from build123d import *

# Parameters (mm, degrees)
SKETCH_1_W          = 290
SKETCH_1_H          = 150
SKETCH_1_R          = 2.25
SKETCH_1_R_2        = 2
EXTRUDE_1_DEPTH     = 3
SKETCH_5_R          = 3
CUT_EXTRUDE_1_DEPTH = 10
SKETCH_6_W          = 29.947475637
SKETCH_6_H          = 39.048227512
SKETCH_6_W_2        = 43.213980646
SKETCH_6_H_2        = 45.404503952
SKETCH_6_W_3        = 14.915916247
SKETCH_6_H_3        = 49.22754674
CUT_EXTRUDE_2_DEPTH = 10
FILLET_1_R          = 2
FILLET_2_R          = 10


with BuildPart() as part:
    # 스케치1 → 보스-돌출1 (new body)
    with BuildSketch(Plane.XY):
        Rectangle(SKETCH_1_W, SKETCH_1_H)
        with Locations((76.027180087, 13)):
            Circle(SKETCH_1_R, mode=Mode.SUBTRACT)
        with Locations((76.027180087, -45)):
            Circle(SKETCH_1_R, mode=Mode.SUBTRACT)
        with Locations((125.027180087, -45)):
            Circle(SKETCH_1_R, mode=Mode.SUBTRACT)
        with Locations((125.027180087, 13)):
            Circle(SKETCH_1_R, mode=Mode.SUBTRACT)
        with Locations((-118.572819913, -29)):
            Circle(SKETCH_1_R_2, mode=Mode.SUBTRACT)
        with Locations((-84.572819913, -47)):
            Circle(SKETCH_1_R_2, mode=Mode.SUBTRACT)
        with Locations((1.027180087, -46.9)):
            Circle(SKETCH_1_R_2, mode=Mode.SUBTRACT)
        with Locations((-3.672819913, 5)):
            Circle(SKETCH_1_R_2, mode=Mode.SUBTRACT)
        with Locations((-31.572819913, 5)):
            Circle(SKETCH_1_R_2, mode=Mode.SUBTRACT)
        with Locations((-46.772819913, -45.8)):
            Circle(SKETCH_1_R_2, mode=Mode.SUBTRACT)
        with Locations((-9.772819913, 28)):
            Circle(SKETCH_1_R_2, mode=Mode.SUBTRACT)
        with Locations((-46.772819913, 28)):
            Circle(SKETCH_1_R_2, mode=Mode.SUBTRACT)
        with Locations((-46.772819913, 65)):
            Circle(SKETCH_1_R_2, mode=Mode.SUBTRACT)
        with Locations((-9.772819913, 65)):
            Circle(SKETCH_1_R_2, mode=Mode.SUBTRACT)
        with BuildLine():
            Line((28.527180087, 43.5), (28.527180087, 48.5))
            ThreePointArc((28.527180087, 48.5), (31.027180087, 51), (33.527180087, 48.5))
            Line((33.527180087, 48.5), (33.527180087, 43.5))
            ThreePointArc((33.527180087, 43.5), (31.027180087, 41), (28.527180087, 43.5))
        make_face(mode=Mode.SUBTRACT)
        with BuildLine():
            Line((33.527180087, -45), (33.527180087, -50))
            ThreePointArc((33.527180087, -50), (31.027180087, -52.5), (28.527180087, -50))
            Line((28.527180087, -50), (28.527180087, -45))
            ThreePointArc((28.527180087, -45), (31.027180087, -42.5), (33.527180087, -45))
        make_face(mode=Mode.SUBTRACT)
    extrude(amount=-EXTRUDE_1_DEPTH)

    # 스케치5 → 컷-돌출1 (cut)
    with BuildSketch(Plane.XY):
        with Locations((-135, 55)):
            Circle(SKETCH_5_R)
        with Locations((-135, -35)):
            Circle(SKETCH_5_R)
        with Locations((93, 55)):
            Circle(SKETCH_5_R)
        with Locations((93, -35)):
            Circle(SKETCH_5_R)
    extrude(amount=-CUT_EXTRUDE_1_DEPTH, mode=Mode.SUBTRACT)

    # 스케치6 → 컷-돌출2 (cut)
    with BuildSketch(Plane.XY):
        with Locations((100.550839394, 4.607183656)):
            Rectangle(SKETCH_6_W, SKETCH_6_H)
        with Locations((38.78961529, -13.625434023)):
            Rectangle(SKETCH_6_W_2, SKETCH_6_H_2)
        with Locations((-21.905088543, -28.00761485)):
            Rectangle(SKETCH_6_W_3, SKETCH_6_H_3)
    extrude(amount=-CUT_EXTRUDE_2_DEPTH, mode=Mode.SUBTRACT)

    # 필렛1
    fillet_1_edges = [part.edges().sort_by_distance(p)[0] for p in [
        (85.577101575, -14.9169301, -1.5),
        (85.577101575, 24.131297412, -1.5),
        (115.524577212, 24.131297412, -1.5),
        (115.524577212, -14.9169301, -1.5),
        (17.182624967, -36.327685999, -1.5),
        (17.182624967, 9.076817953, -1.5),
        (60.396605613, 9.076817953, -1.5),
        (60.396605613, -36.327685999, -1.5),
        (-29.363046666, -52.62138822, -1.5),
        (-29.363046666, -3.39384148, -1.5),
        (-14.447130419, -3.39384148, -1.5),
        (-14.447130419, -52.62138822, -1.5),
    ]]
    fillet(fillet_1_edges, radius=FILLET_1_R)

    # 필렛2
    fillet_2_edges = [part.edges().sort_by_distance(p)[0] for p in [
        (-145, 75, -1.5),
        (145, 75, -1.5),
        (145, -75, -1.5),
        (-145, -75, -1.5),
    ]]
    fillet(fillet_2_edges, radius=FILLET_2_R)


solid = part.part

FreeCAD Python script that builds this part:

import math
import FreeCAD as App
import Part
import Sketcher

V = App.Vector


def edges_at(feature, points):
    """Names of the edges that pass closest to the given points."""
    edges = feature.Shape.Edges
    near = lambda p: min(range(len(edges)), key=lambda i: edges[i].distToShape(Part.Vertex(*p))[0])
    return sorted({f"Edge{near(p) + 1}" for p in points})


def add_polygon(sketch, points):
    """Adds a closed chain of lines whose ends are joined by coincident constraints."""
    first, n = sketch.GeometryCount, len(points)
    for a, b in zip(points, points[1:] + points[:1]):
        sketch.addGeometry(Part.LineSegment(App.Vector(*a, 0), App.Vector(*b, 0)), False)
    for i in range(n):
        sketch.addConstraint(Sketcher.Constraint("Coincident", first + i, 2, first + (i + 1) % n, 1))

doc = App.newDocument("Part")
body = doc.addObject("PartDesign::Body", "Body")

# Sketch on XY plane
sketch1 = body.newObject("Sketcher::SketchObject", "Sketch")
sketch1.AttachmentSupport = (doc.getObject("XY_Plane"), [""])
sketch1.MapMode = "FlatFace"
add_polygon(sketch1, [(-145, 75), (-145, -75), (145, -75), (145, 75)])  # lines 0-3
sketch1.addGeometry(Part.Circle(V(-84.57282, -47, 0), V(0, 0, 1), 2), False)  # 4
sketch1.addGeometry(Part.Circle(V(-118.57282, -29, 0), V(0, 0, 1), 2), False)  # 5
sketch1.addGeometry(Part.Circle(V(-46.77282, -45.8, 0), V(0, 0, 1), 2), False)  # 6
sketch1.addGeometry(Part.Circle(V(1.02718, -46.9, 0), V(0, 0, 1), 2), False)  # 7
sketch1.addGeometry(Part.Circle(V(-31.57282, 5, 0), V(0, 0, 1), 2), False)  # 8
sketch1.addGeometry(Part.Circle(V(-3.67282, 5, 0), V(0, 0, 1), 2), False)  # 9
sketch1.addGeometry(Part.ArcOfCircle(Part.Circle(V(31.02718, -45, 0), V(0, 0, 1), 2.5), math.radians(0), math.radians(180)), False)  # 10
sketch1.addGeometry(Part.LineSegment(V(33.52718, -45, 0), V(33.52718, -50, 0)), False)  # 11
sketch1.addGeometry(Part.ArcOfCircle(Part.Circle(V(31.02718, -50, 0), V(0, 0, 1), 2.5), math.radians(180), math.radians(360)), False)  # 12
sketch1.addGeometry(Part.LineSegment(V(28.52718, -50, 0), V(28.52718, -45, 0)), False)  # 13
sketch1.addGeometry(Part.Circle(V(76.02718, -45, 0), V(0, 0, 1), 2.25), False)  # 14
sketch1.addGeometry(Part.Circle(V(125.02718, -45, 0), V(0, 0, 1), 2.25), False)  # 15
sketch1.addGeometry(Part.Circle(V(-46.77282, 28, 0), V(0, 0, 1), 2), False)  # 16
sketch1.addGeometry(Part.Circle(V(-9.77282, 28, 0), V(0, 0, 1), 2), False)  # 17
sketch1.addGeometry(Part.Circle(V(-46.77282, 65, 0), V(0, 0, 1), 2), False)  # 18
sketch1.addGeometry(Part.Circle(V(-9.77282, 65, 0), V(0, 0, 1), 2), False)  # 19
sketch1.addGeometry(Part.Circle(V(76.02718, 13, 0), V(0, 0, 1), 2.25), False)  # 20
sketch1.addGeometry(Part.Circle(V(125.02718, 13, 0), V(0, 0, 1), 2.25), False)  # 21
sketch1.addGeometry(Part.ArcOfCircle(Part.Circle(V(31.02718, 43.5, 0), V(0, 0, 1), 2.5), math.radians(180), math.radians(360)), False)  # 22
sketch1.addGeometry(Part.LineSegment(V(28.52718, 43.5, 0), V(28.52718, 48.5, 0)), False)  # 23
sketch1.addGeometry(Part.ArcOfCircle(Part.Circle(V(31.02718, 48.5, 0), V(0, 0, 1), 2.5), math.radians(0), math.radians(180)), False)  # 24
sketch1.addGeometry(Part.LineSegment(V(33.52718, 48.5, 0), V(33.52718, 43.5, 0)), False)  # 25
sketch1.addConstraint(Sketcher.Constraint("Tangent", 10, 1, 11, 1))
sketch1.addConstraint(Sketcher.Constraint("Tangent", 11, 2, 12, 2))
sketch1.addConstraint(Sketcher.Constraint("Tangent", 12, 1, 13, 1))
sketch1.addConstraint(Sketcher.Constraint("Tangent", 13, 2, 10, 2))
sketch1.addConstraint(Sketcher.Constraint("Tangent", 22, 1, 23, 1))
sketch1.addConstraint(Sketcher.Constraint("Tangent", 23, 2, 24, 2))
sketch1.addConstraint(Sketcher.Constraint("Tangent", 24, 1, 25, 1))
sketch1.addConstraint(Sketcher.Constraint("Tangent", 25, 2, 22, 2))
sketch1.addConstraint(Sketcher.Constraint("Vertical", 0))
sketch1.addConstraint(Sketcher.Constraint("Horizontal", 1))
sketch1.addConstraint(Sketcher.Constraint("Vertical", 2))
sketch1.addConstraint(Sketcher.Constraint("Horizontal", 3))
sketch1.addConstraint(Sketcher.Constraint("Vertical", 11))
sketch1.addConstraint(Sketcher.Constraint("Vertical", 13))
sketch1.addConstraint(Sketcher.Constraint("Vertical", 23))
sketch1.addConstraint(Sketcher.Constraint("Vertical", 25))
sketch1.addConstraint(Sketcher.Constraint("Equal", 4, 5))
sketch1.addConstraint(Sketcher.Constraint("Equal", 5, 6))
sketch1.addConstraint(Sketcher.Constraint("Equal", 6, 7))
sketch1.addConstraint(Sketcher.Constraint("Equal", 7, 8))
sketch1.addConstraint(Sketcher.Constraint("Equal", 8, 9))
sketch1.addConstraint(Sketcher.Constraint("Equal", 14, 15))
sketch1.addConstraint(Sketcher.Constraint("Equal", 9, 16))
sketch1.addConstraint(Sketcher.Constraint("Equal", 16, 17))
sketch1.addConstraint(Sketcher.Constraint("Equal", 17, 18))
sketch1.addConstraint(Sketcher.Constraint("Equal", 18, 19))
sketch1.addConstraint(Sketcher.Constraint("Equal", 15, 20))
sketch1.addConstraint(Sketcher.Constraint("Equal", 20, 21))
sketch1.addConstraint(Sketcher.Constraint("Equal", 12, 22))
sketch1.addConstraint(Sketcher.Constraint("Symmetric", 0, 2, 2, 2, -1, 1))
sketch1.addConstraint(Sketcher.Constraint("Horizontal", 8, 3, 9, 3))
sketch1.addConstraint(Sketcher.Constraint("Horizontal", 10, 3, 14, 3))
sketch1.addConstraint(Sketcher.Constraint("Horizontal", 14, 3, 15, 3))
sketch1.addConstraint(Sketcher.Constraint("Horizontal", 16, 3, 17, 3))
sketch1.addConstraint(Sketcher.Constraint("Horizontal", 18, 3, 19, 3))
sketch1.addConstraint(Sketcher.Constraint("Horizontal", 20, 3, 21, 3))
sketch1.addConstraint(Sketcher.Constraint("Vertical", 6, 3, 16, 3))
sketch1.addConstraint(Sketcher.Constraint("Vertical", 16, 3, 18, 3))
sketch1.addConstraint(Sketcher.Constraint("Vertical", 17, 3, 19, 3))
sketch1.addConstraint(Sketcher.Constraint("Vertical", 14, 3, 20, 3))
sketch1.addConstraint(Sketcher.Constraint("Vertical", 15, 3, 21, 3))
sketch1.addConstraint(Sketcher.Constraint("Vertical", 12, 3, 22, 3))
sketch1.addConstraint(Sketcher.Constraint("Equal", 13, 23))
sketch1.addConstraint(Sketcher.Constraint("Diameter", 4, 4.0))
sketch1.addConstraint(Sketcher.Constraint("Diameter", 14, 4.5))
sketch1.addConstraint(Sketcher.Constraint("Radius", 10, 2.5))
sketch1.addConstraint(Sketcher.Constraint("DistanceX", 1, 1, 1, 2, 290.0))
sketch1.addConstraint(Sketcher.Constraint("DistanceY", 0, 2, 0, 1, 150.0))
sketch1.addConstraint(Sketcher.Constraint("DistanceY", 11, 2, 11, 1, 5.0))
sketch1.addConstraint(Sketcher.Constraint("DistanceY", 4, 3, -1, 1, 47.0))
sketch1.addConstraint(Sketcher.Constraint("DistanceY", 5, 3, -1, 1, 29.0))
sketch1.addConstraint(Sketcher.Constraint("DistanceY", -1, 1, 8, 3, 5.0))
sketch1.addConstraint(Sketcher.Constraint("DistanceY", 10, 3, -1, 1, 45.0))
sketch1.addConstraint(Sketcher.Constraint("DistanceY", -1, 1, 16, 3, 28.0))
sketch1.addConstraint(Sketcher.Constraint("DistanceY", -1, 1, 18, 3, 65.0))
sketch1.addConstraint(Sketcher.Constraint("DistanceY", -1, 1, 20, 3, 13.0))
sketch1.addConstraint(Sketcher.Constraint("DistanceX", 5, 3, 4, 3, 34.0))
sketch1.addConstraint(Sketcher.Constraint("DistanceX", 4, 3, 8, 3, 53.0))
sketch1.addConstraint(Sketcher.Constraint("DistanceX", 7, 3, 10, 3, 30.0))
sketch1.addConstraint(Sketcher.Constraint("DistanceX", 10, 3, 14, 3, 45.0))
sketch1.addConstraint(Sketcher.Constraint("DistanceX", 14, 3, 15, 3, 49.0))
sketch1.addConstraint(Sketcher.Constraint("DistanceX", 16, 3, 17, 3, 37.0))
sketch1.addConstraint(Sketcher.Constraint("DistanceY", 6, 3, -1, 1, 45.8))
sketch1.addConstraint(Sketcher.Constraint("DistanceY", 7, 3, -1, 1, 46.9))
sketch1.addConstraint(Sketcher.Constraint("DistanceY", -1, 1, 22, 3, 43.5))
sketch1.addConstraint(Sketcher.Constraint("DistanceX", 4, 3, 6, 3, 37.8))
sketch1.addConstraint(Sketcher.Constraint("DistanceX", 6, 3, 7, 3, 47.8))
sketch1.addConstraint(Sketcher.Constraint("DistanceX", 8, 3, 9, 3, 27.9))
sketch1.addConstraint(Sketcher.Constraint("DistanceX", 4, 3, -1, 1, 84.57282))
pad1 = body.newObject("PartDesign::Pad", "Pad")
pad1.Profile = sketch1
pad1.Length = 3
pad1.Reversed = True

# Sketch on XY plane
sketch2 = body.newObject("Sketcher::SketchObject", "Sketch001")
sketch2.AttachmentSupport = (doc.getObject("XY_Plane"), [""])
sketch2.MapMode = "FlatFace"
sketch2.addGeometry(Part.Circle(V(-135, 55, 0), V(0, 0, 1), 3), False)
sketch2.addGeometry(Part.Circle(V(-135, -35, 0), V(0, 0, 1), 3), False)
sketch2.addGeometry(Part.Circle(V(93, 55, 0), V(0, 0, 1), 3), False)
sketch2.addGeometry(Part.Circle(V(93, -35, 0), V(0, 0, 1), 3), False)
sketch2.addConstraint(Sketcher.Constraint("Equal", 0, 1))
sketch2.addConstraint(Sketcher.Constraint("Equal", 1, 2))
sketch2.addConstraint(Sketcher.Constraint("Equal", 2, 3))
sketch2.addConstraint(Sketcher.Constraint("Horizontal", 0, 3, 2, 3))
sketch2.addConstraint(Sketcher.Constraint("Horizontal", 1, 3, 3, 3))
sketch2.addConstraint(Sketcher.Constraint("Vertical", 0, 3, 1, 3))
sketch2.addConstraint(Sketcher.Constraint("Vertical", 2, 3, 3, 3))
sketch2.addConstraint(Sketcher.Constraint("Diameter", 0, 6.0))
sketch2.addConstraint(Sketcher.Constraint("DistanceX", 0, 3, -1, 1, 135.0))
sketch2.addConstraint(Sketcher.Constraint("DistanceY", -1, 1, 0, 3, 55.0))
sketch2.addConstraint(Sketcher.Constraint("DistanceY", 1, 3, -1, 1, 35.0))
sketch2.addConstraint(Sketcher.Constraint("DistanceX", -1, 1, 2, 3, 93.0))
pocket1 = body.newObject("PartDesign::Pocket", "Pocket")
pocket1.Profile = sketch2
pocket1.Length = 10

# Sketch on XY plane
sketch3 = body.newObject("Sketcher::SketchObject", "Sketch002")
sketch3.AttachmentSupport = (doc.getObject("XY_Plane"), [""])
sketch3.MapMode = "FlatFace"
add_polygon(sketch3, [(85.577102, 24.131297), (85.577102, -14.91693), (115.524577, -14.91693), (115.524577, 24.131297)])  # lines 0-3
add_polygon(sketch3, [(17.182625, 9.076818), (17.182625, -36.327686), (60.396606, -36.327686), (60.396606, 9.076818)])  # lines 4-7
add_polygon(sketch3, [(-29.363047, -3.393841), (-29.363047, -52.621388), (-14.44713, -52.621388), (-14.44713, -3.393841)])  # lines 8-11
sketch3.addConstraint(Sketcher.Constraint("Vertical", 0))
sketch3.addConstraint(Sketcher.Constraint("Horizontal", 1))
sketch3.addConstraint(Sketcher.Constraint("Vertical", 2))
sketch3.addConstraint(Sketcher.Constraint("Horizontal", 3))
sketch3.addConstraint(Sketcher.Constraint("Vertical", 4))
sketch3.addConstraint(Sketcher.Constraint("Horizontal", 5))
sketch3.addConstraint(Sketcher.Constraint("Vertical", 6))
sketch3.addConstraint(Sketcher.Constraint("Horizontal", 7))
sketch3.addConstraint(Sketcher.Constraint("Vertical", 8))
sketch3.addConstraint(Sketcher.Constraint("Horizontal", 9))
sketch3.addConstraint(Sketcher.Constraint("Vertical", 10))
sketch3.addConstraint(Sketcher.Constraint("Horizontal", 11))
sketch3.addConstraint(Sketcher.Constraint("DistanceX", 5, 1, 5, 2, 43.213981))
sketch3.addConstraint(Sketcher.Constraint("DistanceX", -1, 1, 0, 2, 85.577102))
sketch3.addConstraint(Sketcher.Constraint("DistanceX", 1, 1, 1, 2, 29.947476))
sketch3.addConstraint(Sketcher.Constraint("DistanceX", 9, 1, 9, 2, 14.915916))
sketch3.addConstraint(Sketcher.Constraint("DistanceY", 0, 2, 0, 1, 39.048228))
sketch3.addConstraint(Sketcher.Constraint("DistanceY", 4, 2, 4, 1, 45.404504))
sketch3.addConstraint(Sketcher.Constraint("DistanceY", 8, 2, 8, 1, 49.227547))
sketch3.addConstraint(Sketcher.Constraint("DistanceY", 0, 2, -1, 1, 14.91693))
sketch3.addConstraint(Sketcher.Constraint("DistanceY", 8, 2, -1, 1, 52.621388))
sketch3.addConstraint(Sketcher.Constraint("DistanceX", 9, 2, -1, 1, 14.44713))
sketch3.addConstraint(Sketcher.Constraint("DistanceX", 5, 2, 1, 2, 55.127972))
sketch3.addConstraint(Sketcher.Constraint("DistanceY", 6, 2, 3, 2, 15.054479))
pocket2 = body.newObject("PartDesign::Pocket", "Pocket001")
pocket2.Profile = sketch3
pocket2.Length = 10
doc.recompute()

fillet = body.newObject("PartDesign::Fillet", "Fillet")
fillet.Base = (pocket2, edges_at(pocket2, [
    (85.577, -14.917, -1.5),
    (85.577, 24.131, -1.5),
    (115.525, 24.131, -1.5),
    (115.525, -14.917, -1.5),
    (17.183, -36.328, -1.5),
    (17.183, 9.077, -1.5),
    (60.397, 9.077, -1.5),
    (60.397, -36.328, -1.5),
    (-29.363, -52.621, -1.5),
    (-29.363, -3.394, -1.5),
    (-14.447, -3.394, -1.5),
    (-14.447, -52.621, -1.5),
]))
fillet.Radius = 2
doc.recompute()

fillet2 = body.newObject("PartDesign::Fillet", "Fillet001")
fillet2.Base = (fillet, edges_at(fillet, [
    (-145, 75, -1.5),
    (145, 75, -1.5),
    (145, -75, -1.5),
    (-145, -75, -1.5),
]))
fillet2.Radius = 10

doc.recompute()
